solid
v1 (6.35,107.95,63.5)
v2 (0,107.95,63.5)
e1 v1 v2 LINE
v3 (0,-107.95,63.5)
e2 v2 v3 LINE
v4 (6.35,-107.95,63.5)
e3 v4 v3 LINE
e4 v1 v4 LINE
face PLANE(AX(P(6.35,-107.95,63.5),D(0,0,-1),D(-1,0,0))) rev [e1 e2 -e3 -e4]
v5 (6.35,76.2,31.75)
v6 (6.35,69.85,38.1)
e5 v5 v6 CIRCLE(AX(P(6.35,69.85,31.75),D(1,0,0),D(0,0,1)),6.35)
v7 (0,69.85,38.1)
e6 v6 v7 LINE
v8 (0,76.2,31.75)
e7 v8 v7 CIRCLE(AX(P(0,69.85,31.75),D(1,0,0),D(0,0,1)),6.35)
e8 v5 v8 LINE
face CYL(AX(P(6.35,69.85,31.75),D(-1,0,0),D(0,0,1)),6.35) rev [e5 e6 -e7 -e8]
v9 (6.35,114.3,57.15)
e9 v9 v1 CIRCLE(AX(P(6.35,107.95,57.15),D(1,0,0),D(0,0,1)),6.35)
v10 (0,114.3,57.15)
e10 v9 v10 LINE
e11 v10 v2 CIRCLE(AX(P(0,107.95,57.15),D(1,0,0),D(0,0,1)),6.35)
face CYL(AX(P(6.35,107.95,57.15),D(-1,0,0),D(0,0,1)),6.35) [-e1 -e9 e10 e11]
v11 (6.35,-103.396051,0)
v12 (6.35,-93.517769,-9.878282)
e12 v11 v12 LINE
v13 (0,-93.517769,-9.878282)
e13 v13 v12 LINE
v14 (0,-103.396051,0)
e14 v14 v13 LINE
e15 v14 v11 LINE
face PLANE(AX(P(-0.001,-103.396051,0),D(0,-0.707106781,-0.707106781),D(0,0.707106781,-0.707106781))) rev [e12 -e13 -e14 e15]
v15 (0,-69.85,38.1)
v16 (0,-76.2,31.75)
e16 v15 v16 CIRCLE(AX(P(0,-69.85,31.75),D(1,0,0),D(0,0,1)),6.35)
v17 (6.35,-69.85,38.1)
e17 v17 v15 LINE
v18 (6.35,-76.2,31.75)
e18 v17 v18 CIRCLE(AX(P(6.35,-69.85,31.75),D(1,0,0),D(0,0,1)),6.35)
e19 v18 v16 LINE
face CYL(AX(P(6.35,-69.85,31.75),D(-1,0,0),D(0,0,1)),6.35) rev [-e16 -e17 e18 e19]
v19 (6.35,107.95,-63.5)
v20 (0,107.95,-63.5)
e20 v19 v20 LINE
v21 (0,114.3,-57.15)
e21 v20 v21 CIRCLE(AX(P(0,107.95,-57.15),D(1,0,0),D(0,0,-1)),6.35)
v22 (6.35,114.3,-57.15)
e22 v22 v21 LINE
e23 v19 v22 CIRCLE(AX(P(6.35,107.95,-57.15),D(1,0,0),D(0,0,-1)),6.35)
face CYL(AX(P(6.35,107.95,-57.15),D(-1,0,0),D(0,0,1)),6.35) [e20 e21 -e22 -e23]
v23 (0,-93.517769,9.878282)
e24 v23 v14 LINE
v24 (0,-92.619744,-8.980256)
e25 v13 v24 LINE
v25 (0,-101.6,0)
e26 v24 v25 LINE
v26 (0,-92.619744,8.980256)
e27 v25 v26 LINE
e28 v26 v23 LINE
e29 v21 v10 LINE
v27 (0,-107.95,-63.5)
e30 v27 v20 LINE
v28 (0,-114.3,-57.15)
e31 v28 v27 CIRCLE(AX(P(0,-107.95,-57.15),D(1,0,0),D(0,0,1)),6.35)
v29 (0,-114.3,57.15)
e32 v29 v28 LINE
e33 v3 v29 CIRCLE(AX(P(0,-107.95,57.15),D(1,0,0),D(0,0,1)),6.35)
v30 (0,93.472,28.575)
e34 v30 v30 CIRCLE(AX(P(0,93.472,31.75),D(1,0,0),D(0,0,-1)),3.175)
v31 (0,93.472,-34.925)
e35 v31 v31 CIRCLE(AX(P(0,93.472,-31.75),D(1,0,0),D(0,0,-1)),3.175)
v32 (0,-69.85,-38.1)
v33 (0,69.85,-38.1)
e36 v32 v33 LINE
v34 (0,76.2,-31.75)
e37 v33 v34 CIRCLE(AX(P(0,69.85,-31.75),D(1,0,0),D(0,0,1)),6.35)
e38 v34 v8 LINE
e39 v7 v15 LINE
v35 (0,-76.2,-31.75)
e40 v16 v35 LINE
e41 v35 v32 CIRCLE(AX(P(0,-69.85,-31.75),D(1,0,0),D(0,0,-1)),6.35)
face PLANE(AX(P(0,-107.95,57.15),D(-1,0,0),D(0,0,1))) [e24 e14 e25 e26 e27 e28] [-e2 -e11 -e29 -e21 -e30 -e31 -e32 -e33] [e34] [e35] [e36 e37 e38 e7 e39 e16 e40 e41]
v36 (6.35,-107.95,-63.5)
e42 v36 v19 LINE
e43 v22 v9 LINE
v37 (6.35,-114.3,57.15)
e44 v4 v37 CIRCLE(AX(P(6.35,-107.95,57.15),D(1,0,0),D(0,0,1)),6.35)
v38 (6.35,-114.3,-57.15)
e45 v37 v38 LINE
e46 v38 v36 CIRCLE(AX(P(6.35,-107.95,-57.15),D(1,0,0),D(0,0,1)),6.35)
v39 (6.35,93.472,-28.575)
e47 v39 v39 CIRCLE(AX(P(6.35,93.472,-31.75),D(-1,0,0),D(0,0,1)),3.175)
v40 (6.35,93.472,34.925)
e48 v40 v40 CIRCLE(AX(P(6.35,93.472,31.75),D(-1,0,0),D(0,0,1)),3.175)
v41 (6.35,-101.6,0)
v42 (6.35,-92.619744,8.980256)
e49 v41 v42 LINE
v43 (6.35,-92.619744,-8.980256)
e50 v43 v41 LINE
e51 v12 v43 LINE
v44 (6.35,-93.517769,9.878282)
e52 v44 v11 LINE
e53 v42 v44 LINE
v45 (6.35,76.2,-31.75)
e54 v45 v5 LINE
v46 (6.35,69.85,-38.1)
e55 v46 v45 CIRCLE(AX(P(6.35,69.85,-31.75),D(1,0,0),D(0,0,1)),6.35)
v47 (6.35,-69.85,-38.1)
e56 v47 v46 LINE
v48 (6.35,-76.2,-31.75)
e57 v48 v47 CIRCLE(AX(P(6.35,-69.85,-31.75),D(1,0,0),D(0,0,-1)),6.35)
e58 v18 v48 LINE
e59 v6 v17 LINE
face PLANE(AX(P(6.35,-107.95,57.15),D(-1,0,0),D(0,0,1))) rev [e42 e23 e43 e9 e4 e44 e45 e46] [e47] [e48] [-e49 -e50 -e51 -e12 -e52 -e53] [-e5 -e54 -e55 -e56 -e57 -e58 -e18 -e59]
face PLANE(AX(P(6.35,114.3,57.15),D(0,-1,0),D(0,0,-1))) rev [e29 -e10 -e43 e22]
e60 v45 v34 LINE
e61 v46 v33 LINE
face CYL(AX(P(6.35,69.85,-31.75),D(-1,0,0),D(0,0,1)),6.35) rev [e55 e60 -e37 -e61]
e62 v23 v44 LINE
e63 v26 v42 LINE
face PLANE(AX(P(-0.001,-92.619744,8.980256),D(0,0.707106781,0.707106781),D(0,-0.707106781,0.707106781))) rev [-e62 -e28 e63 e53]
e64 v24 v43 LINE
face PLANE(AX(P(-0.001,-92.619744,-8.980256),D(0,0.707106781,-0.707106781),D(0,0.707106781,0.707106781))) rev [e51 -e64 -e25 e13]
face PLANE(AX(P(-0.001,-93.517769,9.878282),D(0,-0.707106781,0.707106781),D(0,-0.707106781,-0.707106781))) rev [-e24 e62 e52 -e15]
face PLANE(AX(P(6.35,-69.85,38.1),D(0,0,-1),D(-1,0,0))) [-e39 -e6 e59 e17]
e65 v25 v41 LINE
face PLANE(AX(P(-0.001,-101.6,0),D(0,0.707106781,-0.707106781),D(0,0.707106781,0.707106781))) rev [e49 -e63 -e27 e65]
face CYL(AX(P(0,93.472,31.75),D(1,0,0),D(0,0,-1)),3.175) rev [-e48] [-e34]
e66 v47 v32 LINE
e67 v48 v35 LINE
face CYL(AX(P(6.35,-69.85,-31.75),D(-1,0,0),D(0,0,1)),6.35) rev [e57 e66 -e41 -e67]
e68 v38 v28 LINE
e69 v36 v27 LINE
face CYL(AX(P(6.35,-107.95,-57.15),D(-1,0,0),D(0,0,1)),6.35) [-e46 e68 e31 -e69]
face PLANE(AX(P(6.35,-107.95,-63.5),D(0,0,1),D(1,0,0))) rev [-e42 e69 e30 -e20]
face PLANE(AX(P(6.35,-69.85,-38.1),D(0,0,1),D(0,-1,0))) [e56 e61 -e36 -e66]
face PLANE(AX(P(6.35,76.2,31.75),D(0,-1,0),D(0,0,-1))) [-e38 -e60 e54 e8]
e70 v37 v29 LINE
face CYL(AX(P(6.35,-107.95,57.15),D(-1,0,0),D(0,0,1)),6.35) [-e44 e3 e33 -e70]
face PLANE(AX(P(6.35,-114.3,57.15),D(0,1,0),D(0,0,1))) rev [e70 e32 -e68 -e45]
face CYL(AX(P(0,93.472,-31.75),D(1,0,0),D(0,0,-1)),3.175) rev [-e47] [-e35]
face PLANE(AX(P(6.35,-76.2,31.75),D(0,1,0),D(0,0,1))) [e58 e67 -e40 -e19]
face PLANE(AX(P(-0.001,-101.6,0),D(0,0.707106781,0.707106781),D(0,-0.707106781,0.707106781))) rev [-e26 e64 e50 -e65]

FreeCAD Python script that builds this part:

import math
import FreeCAD as App
import Part
import Sketcher

V = App.Vector
Q = App.Units.Quantity

doc = App.newDocument("Part")
body = doc.addObject("PartDesign::Body", "Body")

# Sketch on YZ plane
sketch1 = body.newObject("Sketcher::SketchObject", "Sketch")
sketch1.AttachmentSupport = (doc.getObject("YZ_Plane"), [""])
sketch1.MapMode = "FlatFace"
sketch1.addGeometry(Part.LineSegment(V(-114, 57, 0), V(-114, -57, 0)), False)
sketch1.addGeometry(Part.ArcOfCircle(Part.Circle(V(-108, -57, 0), V(0, 0, 1), 6), math.radians(180), math.radians(270)), False)
sketch1.addGeometry(Part.LineSegment(V(-108, -64, 0), V(108, -64, 0)), False)
sketch1.addGeometry(Part.ArcOfCircle(Part.Circle(V(108, -57, 0), V(0, 0, 1), 6), math.radians(-90), math.radians(0)), False)
sketch1.addGeometry(Part.LineSegment(V(114, -57, 0), V(114, 57, 0)), False)
sketch1.addGeometry(Part.ArcOfCircle(Part.Circle(V(108, 57, 0), V(0, 0, 1), 6), math.radians(0), math.radians(90)), False)
sketch1.addGeometry(Part.LineSegment(V(108, 64, 0), V(-108, 64, 0)), False)
sketch1.addGeometry(Part.ArcOfCircle(Part.Circle(V(-108, 57, 0), V(0, 0, 1), 6), math.radians(90), math.radians(180)), False)
sketch1.addGeometry(Part.LineSegment(V(-76, -32, 0), V(-76, 32, 0)), False)
sketch1.addGeometry(Part.ArcOfCircle(Part.Circle(V(-70, 32, 0), V(0, 0, 1), 6), math.radians(90), math.radians(180)), False)
sketch1.addGeometry(Part.LineSegment(V(-70, 38, 0), V(70, 38, 0)), False)
sketch1.addGeometry(Part.ArcOfCircle(Part.Circle(V(70, 32, 0), V(0, 0, 1), 6), math.radians(0), math.radians(90)), False)
sketch1.addGeometry(Part.LineSegment(V(76, 32, 0), V(76, -32, 0)), False)
sketch1.addGeometry(Part.ArcOfCircle(Part.Circle(V(70, -32, 0), V(0, 0, 1), 6), math.radians(-90), math.radians(0)), False)
sketch1.addGeometry(Part.LineSegment(V(70, -38, 0), V(-70, -38, 0)), False)
sketch1.addGeometry(Part.ArcOfCircle(Part.Circle(V(-70, -32, 0), V(0, 0, 1), 6), math.radians(180), math.radians(270)), False)
sketch1.addConstraint(Sketcher.Constraint("Tangent", 0, 2, 1, 1))
sketch1.addConstraint(Sketcher.Constraint("Tangent", 1, 2, 2, 1))
sketch1.addConstraint(Sketcher.Constraint("Tangent", 2, 2, 3, 1))
sketch1.addConstraint(Sketcher.Constraint("Tangent", 3, 2, 4, 1))
sketch1.addConstraint(Sketcher.Constraint("Tangent", 4, 2, 5, 1))
sketch1.addConstraint(Sketcher.Constraint("Tangent", 5, 2, 6, 1))
sketch1.addConstraint(Sketcher.Constraint("Tangent", 6, 2, 7, 1))
sketch1.addConstraint(Sketcher.Constraint("Tangent", 7, 2, 0, 1))
sketch1.addConstraint(Sketcher.Constraint("Tangent", 8, 2, 9, 2))
sketch1.addConstraint(Sketcher.Constraint("Tangent", 9, 1, 10, 1))
sketch1.addConstraint(Sketcher.Constraint("Tangent", 10, 2, 11, 2))
sketch1.addConstraint(Sketcher.Constraint("Tangent", 11, 1, 12, 1))
sketch1.addConstraint(Sketcher.Constraint("Tangent", 12, 2, 13, 2))
sketch1.addConstraint(Sketcher.Constraint("Tangent", 13, 1, 14, 1))
sketch1.addConstraint(Sketcher.Constraint("Tangent", 14, 2, 15, 2))
sketch1.addConstraint(Sketcher.Constraint("Tangent", 15, 1, 8, 1))
sketch1.addConstraint(Sketcher.Constraint("Vertical", 0))
sketch1.addConstraint(Sketcher.Constraint("Horizontal", 2))
sketch1.addConstraint(Sketcher.Constraint("Vertical", 4))
sketch1.addConstraint(Sketcher.Constraint("Horizontal", 6))
sketch1.addConstraint(Sketcher.Constraint("Vertical", 8))
sketch1.addConstraint(Sketcher.Constraint("Horizontal", 10))
sketch1.addConstraint(Sketcher.Constraint("Vertical", 12))
sketch1.addConstraint(Sketcher.Constraint("Horizontal", 14))
sketch1.addConstraint(Sketcher.Constraint("Equal", 1, 3))
sketch1.addConstraint(Sketcher.Constraint("Equal", 3, 5))
sketch1.addConstraint(Sketcher.Constraint("Equal", 5, 7))
sketch1.addConstraint(Sketcher.Constraint("Equal", 7, 9))
sketch1.addConstraint(Sketcher.Constraint("Equal", 9, 11))
sketch1.addConstraint(Sketcher.Constraint("Equal", 11, 13))
sketch1.addConstraint(Sketcher.Constraint("Equal", 13, 15))
sketch1.addConstraint(Sketcher.Constraint("Symmetric", 1, 3, 5, 3, -1, 1))
sketch1.addConstraint(Sketcher.Constraint("Symmetric", 9, 3, 13, 3, -1, 1))
sketch1.addConstraint(Sketcher.Constraint("Radius", 1, Q("0.25 in")))
sketch1.addConstraint(Sketcher.Constraint("DistanceX", 2, 1, 2, 2, Q("8.5 in")))
sketch1.addConstraint(Sketcher.Constraint("DistanceX", 10, 1, 10, 2, Q("5.5 in")))
sketch1.addConstraint(Sketcher.Constraint("DistanceY", 0, 2, 0, 1, Q("4.5 in")))
sketch1.addConstraint(Sketcher.Constraint("DistanceY", 8, 1, 8, 2, Q("2.5 in")))
pad1 = body.newObject("PartDesign::Pad", "Pad")
pad1.Profile = sketch1
pad1.Length = Q("0.25 in")

# Sketch on YZ plane
sketch2 = body.newObject("Sketcher::SketchObject", "Sketch001")
sketch2.AttachmentSupport = (doc.getObject("YZ_Plane"), [""])
sketch2.MapMode = "FlatFace"
sketch2.AttachmentOffset = App.Placement(V(0, 0, 0.25 * 25.4), App.Rotation())
sketch2.addGeometry(Part.LineSegment(V(-101.6, 0, 0), V(-92.6, 9, 0)), False)
sketch2.addGeometry(Part.LineSegment(V(-92.6, 9, 0), V(-93.5, 9.9, 0)), False)
sketch2.addGeometry(Part.LineSegment(V(-93.5, 9.9, 0), V(-103.4, 0, 0)), False)
sketch2.addGeometry(Part.LineSegment(V(-103.4, 0, 0), V(-93.5, -9.9, 0)), False)
sketch2.addGeometry(Part.LineSegment(V(-93.5, -9.9, 0), V(-92.6, -9, 0)), False)
sketch2.addGeometry(Part.LineSegment(V(-92.6, -9, 0), V(-101.6, 0, 0)), False)
sketch2.addConstraint(Sketcher.Constraint("Coincident", 0, 2, 1, 1))
sketch2.addConstraint(Sketcher.Constraint("Coincident", 1, 2, 2, 1))
sketch2.addConstraint(Sketcher.Constraint("Coincident", 2, 2, 3, 1))
sketch2.addConstraint(Sketcher.Constraint("Coincident", 3, 2, 4, 1))
sketch2.addConstraint(Sketcher.Constraint("Coincident", 4, 2, 5, 1))
sketch2.addConstraint(Sketcher.Constraint("Coincident", 5, 2, 0, 1))
sketch2.addConstraint(Sketcher.Constraint("Symmetric", 1, 2, 3, 2, -1))
sketch2.addConstraint(Sketcher.Constraint("Symmetric", 0, 2, 4, 2, -1))
sketch2.addConstraint(Sketcher.Constraint("PointOnObject", 2, 2, -1))
sketch2.addConstraint(Sketcher.Constraint("PointOnObject", 5, 2, -1))
sketch2.addConstraint(Sketcher.Constraint("Perpendicular", 0, 1))
sketch2.addConstraint(Sketcher.Constraint("Perpendicular", 1, 2))
sketch2.addConstraint(Sketcher.Constraint("Perpendicular", 2, 3))
sketch2.addConstraint(Sketcher.Constraint("DistanceX", 5, 2, -1, 1, Q("4 in")))
sketch2.addConstraint(Sketcher.Constraint("Distance", 0, Q("0.5 in")))
sketch2.addConstraint(Sketcher.Constraint("Distance", 1, Q("0.05 in")))
pocket1 = body.newObject("PartDesign::Pocket", "Pocket")
pocket1.Profile = sketch2
pocket1.Type = "UpToFirst"

# Sketch on YZ plane
sketch3 = body.newObject("Sketcher::SketchObject", "Sketch002")
sketch3.AttachmentSupport = (doc.getObject("YZ_Plane"), [""])
sketch3.MapMode = "FlatFace"
sketch3.AttachmentOffset = App.Placement(V(0, 0, 0.25 * 25.4), App.Rotation())
sketch3.addGeometry(Part.Circle(V(93.5, 31.8, 0), V(0, 0, 1), 3.2), False)
sketch3.addGeometry(Part.Circle(V(93.5, -31.8, 0), V(0, 0, 1), 3.2), False)
sketch3.addConstraint(Sketcher.Constraint("Equal", 0, 1))
sketch3.addConstraint(Sketcher.Constraint("Symmetric", 0, 3, 1, 3, -1))
sketch3.addConstraint(Sketcher.Constraint("Diameter", 0, Q("0.25 in")))
sketch3.addConstraint(Sketcher.Constraint("DistanceY", 1, 3, 0, 3, Q("2.5 in")))
sketch3.addConstraint(Sketcher.Constraint("DistanceX", -1, 1, 0, 3, Q("3.68 in")))
pocket2 = body.newObject("PartDesign::Pocket", "Pocket001")
pocket2.Profile = sketch3
pocket2.Type = "ThroughAll"
pocket2.Midplane = True

doc.recompute()
